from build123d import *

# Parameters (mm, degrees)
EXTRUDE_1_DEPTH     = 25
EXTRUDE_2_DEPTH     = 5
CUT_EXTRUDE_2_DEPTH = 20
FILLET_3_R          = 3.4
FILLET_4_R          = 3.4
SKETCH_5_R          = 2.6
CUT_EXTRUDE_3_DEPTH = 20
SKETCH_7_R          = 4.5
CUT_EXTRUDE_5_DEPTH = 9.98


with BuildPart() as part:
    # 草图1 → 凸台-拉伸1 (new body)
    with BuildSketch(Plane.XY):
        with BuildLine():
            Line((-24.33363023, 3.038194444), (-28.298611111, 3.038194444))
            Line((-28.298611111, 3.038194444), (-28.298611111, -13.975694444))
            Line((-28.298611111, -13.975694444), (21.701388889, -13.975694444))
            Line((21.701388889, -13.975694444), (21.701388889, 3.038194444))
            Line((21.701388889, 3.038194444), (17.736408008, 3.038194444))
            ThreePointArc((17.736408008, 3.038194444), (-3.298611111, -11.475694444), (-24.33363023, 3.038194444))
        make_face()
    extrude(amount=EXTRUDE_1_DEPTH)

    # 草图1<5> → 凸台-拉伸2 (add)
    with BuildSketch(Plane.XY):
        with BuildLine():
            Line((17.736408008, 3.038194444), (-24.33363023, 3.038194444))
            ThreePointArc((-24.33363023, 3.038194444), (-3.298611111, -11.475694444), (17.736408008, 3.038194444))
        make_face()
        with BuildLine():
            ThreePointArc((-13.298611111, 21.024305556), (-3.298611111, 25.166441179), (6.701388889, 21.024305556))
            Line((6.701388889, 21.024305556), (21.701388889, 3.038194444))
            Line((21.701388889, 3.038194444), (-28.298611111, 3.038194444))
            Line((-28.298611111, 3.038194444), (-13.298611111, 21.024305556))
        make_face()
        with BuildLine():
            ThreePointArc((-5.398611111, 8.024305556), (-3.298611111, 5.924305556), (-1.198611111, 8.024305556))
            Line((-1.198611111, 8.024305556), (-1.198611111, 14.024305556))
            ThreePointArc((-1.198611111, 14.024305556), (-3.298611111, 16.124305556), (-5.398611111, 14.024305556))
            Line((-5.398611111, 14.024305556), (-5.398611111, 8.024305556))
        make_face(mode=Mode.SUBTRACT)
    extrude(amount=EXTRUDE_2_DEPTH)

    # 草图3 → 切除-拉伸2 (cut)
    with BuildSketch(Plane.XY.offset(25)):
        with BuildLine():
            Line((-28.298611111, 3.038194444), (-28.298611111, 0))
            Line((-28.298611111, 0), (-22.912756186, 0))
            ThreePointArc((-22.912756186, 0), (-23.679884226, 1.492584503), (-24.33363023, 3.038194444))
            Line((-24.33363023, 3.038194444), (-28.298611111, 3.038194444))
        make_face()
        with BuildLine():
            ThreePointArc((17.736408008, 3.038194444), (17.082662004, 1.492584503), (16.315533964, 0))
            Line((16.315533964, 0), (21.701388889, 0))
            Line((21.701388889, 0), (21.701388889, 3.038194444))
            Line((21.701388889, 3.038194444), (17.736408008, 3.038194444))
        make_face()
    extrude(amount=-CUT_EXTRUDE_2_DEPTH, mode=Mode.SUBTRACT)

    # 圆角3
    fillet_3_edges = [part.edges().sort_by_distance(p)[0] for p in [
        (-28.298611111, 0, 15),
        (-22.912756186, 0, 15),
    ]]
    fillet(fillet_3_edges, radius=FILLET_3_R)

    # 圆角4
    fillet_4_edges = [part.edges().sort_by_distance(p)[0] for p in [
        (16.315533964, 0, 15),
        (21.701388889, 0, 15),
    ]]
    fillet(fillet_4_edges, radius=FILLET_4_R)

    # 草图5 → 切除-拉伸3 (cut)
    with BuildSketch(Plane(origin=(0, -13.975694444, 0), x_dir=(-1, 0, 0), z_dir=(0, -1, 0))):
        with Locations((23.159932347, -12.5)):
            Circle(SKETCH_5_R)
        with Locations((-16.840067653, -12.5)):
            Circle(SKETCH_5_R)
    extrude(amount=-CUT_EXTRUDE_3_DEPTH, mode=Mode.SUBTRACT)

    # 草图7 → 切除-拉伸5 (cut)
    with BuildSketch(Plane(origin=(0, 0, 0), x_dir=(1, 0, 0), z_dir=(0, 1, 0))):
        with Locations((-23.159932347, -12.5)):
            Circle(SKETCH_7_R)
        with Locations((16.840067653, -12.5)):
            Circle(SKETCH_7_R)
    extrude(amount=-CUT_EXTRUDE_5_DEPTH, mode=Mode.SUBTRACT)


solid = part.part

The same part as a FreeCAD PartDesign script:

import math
import FreeCAD as App
import Part
import Sketcher
Q = App.Units.Quantity


def edges_at(feature, points):
    """Names of the edges that pass closest to the given points."""
    edges = feature.Shape.Edges
    near = lambda p: min(range(len(edges)), key=lambda i: edges[i].distToShape(Part.Vertex(*p))[0])
    return sorted({f"Edge{near(p) + 1}" for p in points})

doc = App.newDocument("Part")
params = doc.addObject("Spreadsheet::Sheet", "Params")
for row, (alias, value) in enumerate([
    ("sketch1_radius", "22.5 mm"),
    ("sketch1_width", "50 mm"),
    ("pad1_length", "25 mm"),
    ("sketch2_radius", "22.5 mm"),
    ("sketch2_radius2", "2.1 mm"),
    ("sketch2_height", "6 mm"),
    ("pad2_length", "5 mm"),
    ("sketch3_radius", "22.5 mm"),
    ("pocket1_length", "20 mm"),
    ("fillet_radius", "3.4 mm"),
    ("fillet2_radius", "3.4 mm"),
    ("sketch4_diameter", "5.2 mm"),
    ("pocket2_length", "20 mm"),
    ("sketch5_diameter", "9 mm"),
    ("pocket3_length", "9.98 mm"),
], start=1):
    params.set(f"A{row}", alias)
    params.set(f"B{row}", "=" + value)
    params.setAlias(f"B{row}", alias)

body = doc.addObject("PartDesign::Body", "Body")

# Sketch on XY plane
sketch1 = body.newObject("Sketcher::SketchObject", "Sketch")
sketch1.AttachmentSupport = (doc.getObject("XY_Plane"), [""])
sketch1.MapMode = "FlatFace"
sketch1.addGeometry([
    Part.LineSegment(App.Vector(-24.33363, 3.038194, 0), App.Vector(-28.298611, 3.038194, 0)),  # 0
    Part.LineSegment(App.Vector(-28.298611, 3.038194, 0), App.Vector(-28.298611, -13.975694, 0)),  # 1
    Part.LineSegment(App.Vector(-28.298611, -13.975694, 0), App.Vector(21.701389, -13.975694, 0)),  # 2
    Part.LineSegment(App.Vector(21.701389, -13.975694, 0), App.Vector(21.701389, 3.038194, 0)),  # 3
    Part.LineSegment(App.Vector(21.701389, 3.038194, 0), App.Vector(17.736408, 3.038194, 0)),  # 4
    Part.ArcOfCircle(Part.Circle(App.Vector(-3.298611, 11.024306, 0), App.Vector(0, 0, 1), 22.5), math.radians(-159.210339), math.radians(-20.789661)),  # 5
], False)
sketch1.addConstraint([
    Sketcher.Constraint("Coincident", 0, 2, 1, 1),
    Sketcher.Constraint("Coincident", 1, 2, 2, 1),
    Sketcher.Constraint("Coincident", 2, 2, 3, 1),
    Sketcher.Constraint("Coincident", 3, 2, 4, 1),
    Sketcher.Constraint("Coincident", 4, 2, 5, 2),
    Sketcher.Constraint("Coincident", 5, 1, 0, 1),
    Sketcher.Constraint("Horizontal", 0),
    Sketcher.Constraint("Vertical", 1),
    Sketcher.Constraint("Horizontal", 2),
    Sketcher.Constraint("Vertical", 3),
    Sketcher.Constraint("Horizontal", 4),
    Sketcher.Constraint("Horizontal", 0, 2, 3, 2),
    Sketcher.Constraint("Equal", 0, 4),
    Sketcher.Constraint("Radius", 5, Q("22.5 mm")),
    Sketcher.Constraint("DistanceX", 2, 1, 2, 2, Q("50 mm")),
    Sketcher.Constraint("DistanceY", 1, 2, 5, 3, Q("25 mm")),
    Sketcher.Constraint("DistanceX", 0, 2, 0, 1, Q("3.964981 mm")),
    Sketcher.Constraint("DistanceX", 5, 3, -1, 1, Q("3.298611 mm")),
    Sketcher.Constraint("DistanceY", -1, 1, 5, 3, Q("11.024306 mm")),
])
sketch1.setExpression("Constraints[13]", "Params.sketch1_radius")
sketch1.setExpression("Constraints[14]", "Params.sketch1_width")
pad1 = body.newObject("PartDesign::Pad", "Pad")
pad1.Profile = sketch1
pad1.setExpression("Length", "Params.pad1_length")

# Sketch on XY plane
sketch2 = body.newObject("Sketcher::SketchObject", "Sketch001")
sketch2.AttachmentSupport = (doc.getObject("XY_Plane"), [""])
sketch2.MapMode = "FlatFace"
sketch2.addGeometry([
    Part.ArcOfCircle(Part.Circle(App.Vector(-3.298611, 11.024306, 0), App.Vector(0, 0, 1), 22.5), math.radians(-159.210339), math.radians(-20.789661)),  # 0
    Part.LineSegment(App.Vector(17.736408, 3.038194, 0), App.Vector(21.701389, 3.038194, 0)),  # 1
    Part.LineSegment(App.Vector(21.701389, 3.038194, 0), App.Vector(6.701389, 21.024306, 0)),  # 2
    Part.ArcOfCircle(Part.Circle(App.Vector(-3.298611, 11.024306, 0), App.Vector(0, 0, 1), 14.142136), math.radians(45), math.radians(135)),  # 3
    Part.LineSegment(App.Vector(-13.298611, 21.024306, 0), App.Vector(-28.298611, 3.038194, 0)),  # 4
    Part.LineSegment(App.Vector(-28.298611, 3.038194, 0), App.Vector(-24.33363, 3.038194, 0)),  # 5
    Part.ArcOfCircle(Part.Circle(App.Vector(-3.298611, 8.024306, 0), App.Vector(0, 0, 1), 2.1), math.radians(180), math.radians(360)),  # 6
    Part.LineSegment(App.Vector(-5.398611, 8.024306, 0), App.Vector(-5.398611, 14.024306, 0)),  # 7
    Part.ArcOfCircle(Part.Circle(App.Vector(-3.298611, 14.024306, 0), App.Vector(0, 0, 1), 2.1), math.radians(0), math.radians(180)),  # 8
    Part.LineSegment(App.Vector(-1.198611, 14.024306, 0), App.Vector(-1.198611, 8.024306, 0)),  # 9
], False)
sketch2.addConstraint([
    Sketcher.Constraint("Coincident", 0, 2, 1, 1),
    Sketcher.Constraint("Coincident", 1, 2, 2, 1),
    Sketcher.Constraint("Coincident", 2, 2, 3, 1),
    Sketcher.Constraint("Coincident", 3, 2, 4, 1),
    Sketcher.Constraint("Coincident", 4, 2, 5, 1),
    Sketcher.Constraint("Coincident", 5, 2, 0, 1),
    Sketcher.Constraint("Tangent", 6, 1, 7, 1),
    Sketcher.Constraint("Tangent", 7, 2, 8, 2),
    Sketcher.Constraint("Tangent", 8, 1, 9, 1),
    Sketcher.Constraint("Tangent", 9, 2, 6, 2),
    Sketcher.Constraint("Horizontal", 1),
    Sketcher.Constraint("Horizontal", 5),
    Sketcher.Constraint("Vertical", 7),
    Sketcher.Constraint("Vertical", 9),
    Sketcher.Constraint("Coincident", 3, 3, 0, 3),
    Sketcher.Constraint("Horizontal", 2, 2, 3, 2),
    Sketcher.Constraint("Horizontal", 1, 2, 4, 2),
    Sketcher.Constraint("Vertical", 3, 3, 6, 3),
    Sketcher.Constraint("Equal", 1, 5),
    Sketcher.Constraint("Radius", 0, Q("22.5 mm")),
    Sketcher.Constraint("Radius", 6, Q("2.1 mm")),
    Sketcher.Constraint("DistanceY", 7, 1, 7, 2, Q("6 mm")),
    Sketcher.Constraint("DistanceY", 6, 3, 3, 3, Q("3 mm")),
    Sketcher.Constraint("DistanceX", 6, 3, 1, 2, Q("25 mm")),
    Sketcher.Constraint("DistanceX", 8, 3, 2, 2, Q("10 mm")),
    Sketcher.Constraint("DistanceY", 8, 3, 2, 2, Q("7 mm")),
    Sketcher.Constraint("DistanceX", 1, 1, 1, 2, Q("3.964981 mm")),
    Sketcher.Constraint("DistanceX", 0, 3, -1, 1, Q("3.298611 mm")),
    Sketcher.Constraint("DistanceY", -1, 1, 0, 3, Q("11.024306 mm")),
])
sketch2.setExpression("Constraints[19]", "Params.sketch2_radius")
sketch2.setExpression("Constraints[20]", "Params.sketch2_radius2")
sketch2.setExpression("Constraints[21]", "Params.sketch2_height")
pad2 = body.newObject("PartDesign::Pad", "Pad001")
pad2.Profile = sketch2
pad2.setExpression("Length", "Params.pad2_length")

# Sketch on XY plane
sketch3 = body.newObject("Sketcher::SketchObject", "Sketch002")
sketch3.AttachmentSupport = (doc.getObject("XY_Plane"), [""])
sketch3.MapMode = "FlatFace"
sketch3.AttachmentOffset = App.Placement(App.Vector(0, 0, 25), App.Rotation())
sketch3.addGeometry([
    Part.LineSegment(App.Vector(-28.298611, 3.038194, 0), App.Vector(-28.298611, 0, 0)),  # 0
    Part.LineSegment(App.Vector(-28.298611, 0, 0), App.Vector(-22.912756, 0, 0)),  # 1
    Part.ArcOfCircle(Part.Circle(App.Vector(-3.298611, 11.024306, 0), App.Vector(0, 0, 1), 22.5), math.radians(-159.210339), math.radians(-150.661447)),  # 2
    Part.LineSegment(App.Vector(-24.33363, 3.038194, 0), App.Vector(-28.298611, 3.038194, 0)),  # 3
    Part.ArcOfCircle(Part.Circle(App.Vector(-3.298611, 11.024306, 0), App.Vector(0, 0, 1), 22.5), math.radians(-29.338553), math.radians(-20.789661)),  # 4
    Part.LineSegment(App.Vector(16.315534, 0, 0), App.Vector(21.701389, 0, 0)),  # 5
    Part.LineSegment(App.Vector(21.701389, 0, 0), App.Vector(21.701389, 3.038194, 0)),  # 6
    Part.LineSegment(App.Vector(21.701389, 3.038194, 0), App.Vector(17.736408, 3.038194, 0)),  # 7
], False)
sketch3.addConstraint([
    Sketcher.Constraint("Coincident", 0, 2, 1, 1),
    Sketcher.Constraint("Coincident", 1, 2, 2, 2),
    Sketcher.Constraint("Coincident", 2, 1, 3, 1),
    Sketcher.Constraint("Coincident", 3, 2, 0, 1),
    Sketcher.Constraint("Coincident", 4, 1, 5, 1),
    Sketcher.Constraint("Coincident", 5, 2, 6, 1),
    Sketcher.Constraint("Coincident", 6, 2, 7, 1),
    Sketcher.Constraint("Coincident", 7, 2, 4, 2),
    Sketcher.Constraint("Vertical", 0),
    Sketcher.Constraint("Horizontal", 1),
    Sketcher.Constraint("Horizontal", 3),
    Sketcher.Constraint("Horizontal", 5),
    Sketcher.Constraint("Vertical", 6),
    Sketcher.Constraint("Horizontal", 7),
    Sketcher.Constraint("Coincident", 4, 3, 2, 3),
    Sketcher.Constraint("Equal", 2, 4),
    Sketcher.Constraint("PointOnObject", 0, 2, -1),
    Sketcher.Constraint("PointOnObject", 4, 1, -1),
    Sketcher.Constraint("Horizontal", 3, 2, 6, 2),
    Sketcher.Constraint("Equal", 1, 5),
    Sketcher.Constraint("Radius", 2, Q("22.5 mm")),
    Sketcher.Constraint("DistanceX", 0, 2, 4, 3, Q("25 mm")),
    Sketcher.Constraint("DistanceX", 3, 2, 3, 1, Q("3.964981 mm")),
    Sketcher.Constraint("DistanceX", 1, 1, 1, 2, Q("5.385855 mm")),
    Sketcher.Constraint("DistanceX", 2, 3, -1, 1, Q("3.298611 mm")),
])
sketch3.setExpression("Constraints[20]", "Params.sketch3_radius")
pocket1 = body.newObject("PartDesign::Pocket", "Pocket")
pocket1.Profile = sketch3
pocket1.setExpression("Length", "Params.pocket1_length")
doc.recompute()

fillet = body.newObject("PartDesign::Fillet", "Fillet")
fillet.Base = (pocket1, edges_at(pocket1, [(-28.299, 0, 15), (-22.913, 0, 15)]))
fillet.setExpression("Radius", "Params.fillet_radius")
doc.recompute()

fillet2 = body.newObject("PartDesign::Fillet", "Fillet001")
fillet2.Base = (fillet, edges_at(fillet, [(16.316, 0, 15), (21.701, 0, 15)]))
fillet2.setExpression("Radius", "Params.fillet2_radius")

# Sketch on XZ plane
sketch4 = body.newObject("Sketcher::SketchObject", "Sketch003")
sketch4.AttachmentSupport = (doc.getObject("XZ_Plane"), [""])
sketch4.MapMode = "FlatFace"
sketch4.AttachmentOffset = App.Placement(App.Vector(0, 0, 13.975694), App.Rotation())
sketch4.addGeometry([
    Part.Circle(App.Vector(-23.159932, 12.5, 0), App.Vector(0, 0, 1), 2.6),
    Part.Circle(App.Vector(16.840068, 12.5, 0), App.Vector(0, 0, 1), 2.6),
], False)
sketch4.addConstraint([
    Sketcher.Constraint("Equal", 0, 1),
    Sketcher.Constraint("Horizontal", 0, 3, 1, 3),
    Sketcher.Constraint("Diameter", 0, Q("5.2 mm")),
    Sketcher.Constraint("DistanceX", 0, 3, 1, 3, Q("40 mm")),
    Sketcher.Constraint("DistanceY", -1, 1, 0, 3, Q("12.5 mm")),
    Sketcher.Constraint("DistanceX", 0, 3, -1, 1, Q("23.159932 mm")),
])
sketch4.setExpression("Constraints[2]", "Params.sketch4_diameter")
pocket2 = body.newObject("PartDesign::Pocket", "Pocket001")
pocket2.Profile = sketch4
pocket2.setExpression("Length", "Params.pocket2_length")

# Sketch on XZ plane
sketch5 = body.newObject("Sketcher::SketchObject", "Sketch004")
sketch5.AttachmentSupport = (doc.getObject("XZ_Plane"), [""])
sketch5.MapMode = "FlatFace"
sketch5.addGeometry([
    Part.Circle(App.Vector(-23.159932, 12.5, 0), App.Vector(0, 0, 1), 4.5),
    Part.Circle(App.Vector(16.840068, 12.5, 0), App.Vector(0, 0, 1), 4.5),
], False)
sketch5.addConstraint([
    Sketcher.Constraint("Equal", 0, 1),
    Sketcher.Constraint("Horizontal", 0, 3, 1, 3),
    Sketcher.Constraint("Diameter", 0, Q("9 mm")),
    Sketcher.Constraint("DistanceX", 0, 3, 1, 3, Q("40 mm")),
    Sketcher.Constraint("DistanceY", -1, 1, 0, 3, Q("12.5 mm")),
    Sketcher.Constraint("DistanceX", 0, 3, -1, 1, Q("23.159932 mm")),
])
sketch5.setExpression("Constraints[2]", "Params.sketch5_diameter")
pocket3 = body.newObject("PartDesign::Pocket", "Pocket002")
pocket3.Profile = sketch5
pocket3.setExpression("Length", "Params.pocket3_length")
pocket3.Reversed = True

doc.recompute()
